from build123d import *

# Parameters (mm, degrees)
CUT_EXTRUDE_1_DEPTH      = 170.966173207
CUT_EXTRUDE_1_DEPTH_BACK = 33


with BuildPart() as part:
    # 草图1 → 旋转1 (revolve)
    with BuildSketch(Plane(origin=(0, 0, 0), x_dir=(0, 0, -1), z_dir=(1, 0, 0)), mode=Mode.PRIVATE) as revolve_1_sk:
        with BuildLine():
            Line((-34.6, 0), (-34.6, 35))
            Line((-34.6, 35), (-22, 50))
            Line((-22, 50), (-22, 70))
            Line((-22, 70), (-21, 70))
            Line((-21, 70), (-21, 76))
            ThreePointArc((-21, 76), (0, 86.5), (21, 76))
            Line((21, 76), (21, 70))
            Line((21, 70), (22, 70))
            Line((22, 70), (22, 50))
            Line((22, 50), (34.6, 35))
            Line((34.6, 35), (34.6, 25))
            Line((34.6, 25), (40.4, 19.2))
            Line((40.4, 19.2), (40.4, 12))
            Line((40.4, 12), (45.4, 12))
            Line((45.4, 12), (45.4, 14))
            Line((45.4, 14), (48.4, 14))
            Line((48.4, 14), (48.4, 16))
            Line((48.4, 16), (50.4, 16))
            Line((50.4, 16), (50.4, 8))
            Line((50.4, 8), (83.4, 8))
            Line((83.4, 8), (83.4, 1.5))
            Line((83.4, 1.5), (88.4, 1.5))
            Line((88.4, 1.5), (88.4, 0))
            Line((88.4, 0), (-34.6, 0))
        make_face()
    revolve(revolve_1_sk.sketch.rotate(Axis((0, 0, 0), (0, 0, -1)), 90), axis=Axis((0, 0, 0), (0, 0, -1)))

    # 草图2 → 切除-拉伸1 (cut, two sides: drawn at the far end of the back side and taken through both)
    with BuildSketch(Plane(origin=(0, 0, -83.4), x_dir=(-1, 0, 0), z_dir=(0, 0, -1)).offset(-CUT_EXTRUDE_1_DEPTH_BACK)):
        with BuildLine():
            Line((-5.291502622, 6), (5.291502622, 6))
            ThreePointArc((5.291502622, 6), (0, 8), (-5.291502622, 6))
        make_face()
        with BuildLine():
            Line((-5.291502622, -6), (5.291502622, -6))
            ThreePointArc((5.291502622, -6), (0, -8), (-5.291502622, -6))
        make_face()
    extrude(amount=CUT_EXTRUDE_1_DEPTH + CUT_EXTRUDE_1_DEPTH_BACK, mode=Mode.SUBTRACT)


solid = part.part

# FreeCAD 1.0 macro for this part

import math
import FreeCAD as App
import Part
import Sketcher
from FreeCAD import Vector
Q = App.Units.Quantity

doc = App.newDocument("Part")
body = doc.addObject("PartDesign::Body", "Body")

# Sketch on YZ plane
sketch1 = body.newObject("Sketcher::SketchObject", "Sketch")
sketch1.AttachmentSupport = (doc.getObject("YZ_Plane"), [""])
sketch1.MapMode = "FlatFace"
sketch1.addGeometry([
    Part.LineSegment(Vector(35, 34.6, 0), Vector(0, 34.6, 0)),  # 0
    Part.LineSegment(Vector(0, 34.6, 0), Vector(0, -88.4, 0)),  # 1
    Part.LineSegment(Vector(0, -88.4, 0), Vector(1.5, -88.4, 0)),  # 2
    Part.LineSegment(Vector(1.5, -88.4, 0), Vector(1.5, -83.4, 0)),  # 3
    Part.LineSegment(Vector(1.5, -83.4, 0), Vector(8, -83.4, 0)),  # 4
    Part.LineSegment(Vector(8, -83.4, 0), Vector(8, -50.4, 0)),  # 5
    Part.LineSegment(Vector(8, -50.4, 0), Vector(16, -50.4, 0)),  # 6
    Part.LineSegment(Vector(16, -50.4, 0), Vector(16, -48.4, 0)),  # 7
    Part.LineSegment(Vector(16, -48.4, 0), Vector(14, -48.4, 0)),  # 8
    Part.LineSegment(Vector(14, -48.4, 0), Vector(14, -45.4, 0)),  # 9
    Part.LineSegment(Vector(14, -45.4, 0), Vector(12, -45.4, 0)),  # 10
    Part.LineSegment(Vector(12, -45.4, 0), Vector(12, -40.4, 0)),  # 11
    Part.LineSegment(Vector(12, -40.4, 0), Vector(19.2, -40.4, 0)),  # 12
    Part.LineSegment(Vector(19.2, -40.4, 0), Vector(25, -34.6, 0)),  # 13
    Part.LineSegment(Vector(25, -34.6, 0), Vector(35, -34.6, 0)),  # 14
    Part.LineSegment(Vector(35, -34.6, 0), Vector(50, -22, 0)),  # 15
    Part.LineSegment(Vector(50, -22, 0), Vector(70, -22, 0)),  # 16
    Part.LineSegment(Vector(70, -22, 0), Vector(70, -21, 0)),  # 17
    Part.LineSegment(Vector(70, -21, 0), Vector(76, -21, 0)),  # 18
    Part.ArcOfCircle(Part.Circle(Vector(60.2, 0, 0), Vector(0, 0, 1), 26.2), math.radians(-53), math.radians(53)),  # 19
    Part.LineSegment(Vector(76, 21, 0), Vector(70, 21, 0)),  # 20
    Part.LineSegment(Vector(70, 21, 0), Vector(70, 22, 0)),  # 21
    Part.LineSegment(Vector(70, 22, 0), Vector(50, 22, 0)),  # 22
    Part.LineSegment(Vector(50, 22, 0), Vector(35, 34.6, 0)),  # 23
], False)
sketch1.addConstraint([
    Sketcher.Constraint("Coincident", 0, 2, 1, 1),
    Sketcher.Constraint("Coincident", 1, 2, 2, 1),
    Sketcher.Constraint("Coincident", 2, 2, 3, 1),
    Sketcher.Constraint("Coincident", 3, 2, 4, 1),
    Sketcher.Constraint("Coincident", 4, 2, 5, 1),
    Sketcher.Constraint("Coincident", 5, 2, 6, 1),
    Sketcher.Constraint("Coincident", 6, 2, 7, 1),
    Sketcher.Constraint("Coincident", 7, 2, 8, 1),
    Sketcher.Constraint("Coincident", 8, 2, 9, 1),
    Sketcher.Constraint("Coincident", 9, 2, 10, 1),
    Sketcher.Constraint("Coincident", 10, 2, 11, 1),
    Sketcher.Constraint("Coincident", 11, 2, 12, 1),
    Sketcher.Constraint("Coincident", 12, 2, 13, 1),
    Sketcher.Constraint("Coincident", 13, 2, 14, 1),
    Sketcher.Constraint("Coincident", 14, 2, 15, 1),
    Sketcher.Constraint("Coincident", 15, 2, 16, 1),
    Sketcher.Constraint("Coincident", 16, 2, 17, 1),
    Sketcher.Constraint("Coincident", 17, 2, 18, 1),
    Sketcher.Constraint("Coincident", 18, 2, 19, 1),
    Sketcher.Constraint("Coincident", 19, 2, 20, 1),
    Sketcher.Constraint("Coincident", 20, 2, 21, 1),
    Sketcher.Constraint("Coincident", 21, 2, 22, 1),
    Sketcher.Constraint("Coincident", 22, 2, 23, 1),
    Sketcher.Constraint("Coincident", 23, 2, 0, 1),
    Sketcher.Constraint("Horizontal", 0),
    Sketcher.Constraint("Vertical", 1),
    Sketcher.Constraint("Horizontal", 2),
    Sketcher.Constraint("Vertical", 3),
    Sketcher.Constraint("Horizontal", 4),
    Sketcher.Constraint("Vertical", 5),
    Sketcher.Constraint("Horizontal", 6),
    Sketcher.Constraint("Vertical", 7),
    Sketcher.Constraint("Horizontal", 8),
    Sketcher.Constraint("Vertical", 9),
    Sketcher.Constraint("Horizontal", 10),
    Sketcher.Constraint("Vertical", 11),
    Sketcher.Constraint("Horizontal", 12),
    Sketcher.Constraint("Horizontal", 14),
    Sketcher.Constraint("Horizontal", 16),
    Sketcher.Constraint("Vertical", 17),
    Sketcher.Constraint("Horizontal", 18),
    Sketcher.Constraint("Horizontal", 20),
    Sketcher.Constraint("Vertical", 21),
    Sketcher.Constraint("Horizontal", 22),
    Sketcher.Constraint("Symmetric", 18, 2, 19, 2, -1),
    Sketcher.Constraint("Symmetric", 16, 2, 21, 2, -1),
    Sketcher.Constraint("Symmetric", 14, 2, 23, 2, -1),
    Sketcher.Constraint("PointOnObject", 0, 2, -2),
    Sketcher.Constraint("Vertical", 15, 2, 22, 2),
    Sketcher.Constraint("Equal", 8, 10),
    Sketcher.Constraint("Equal", 10, 7),
    Sketcher.Constraint("Equal", 3, 11),
    Sketcher.Constraint("DistanceX", 0, 2, 0, 1, 35.0),
    Sketcher.Constraint("DistanceX", 6, 1, 6, 2, 8.0),
    Sketcher.Constraint("DistanceX", 8, 2, 8, 1, 2.0),
    Sketcher.Constraint("DistanceX", 14, 1, 14, 2, 10.0),
    Sketcher.Constraint("DistanceX", 16, 1, 16, 2, 20.0),
    Sketcher.Constraint("DistanceX", 18, 1, 18, 2, 6.0),
    Sketcher.Constraint("DistanceY", 1, 2, 1, 1, 123.0),
    Sketcher.Constraint("DistanceY", 3, 1, 3, 2, 5.0),
    Sketcher.Constraint("DistanceY", 5, 1, 5, 2, 33.0),
    Sketcher.Constraint("DistanceY", 9, 1, 9, 2, 3.0),
    Sketcher.Constraint("DistanceY", 17, 1, 17, 2, 1.0),
    Sketcher.Constraint("Angle", 13, Q("45 deg")),
    Sketcher.Constraint("Radius", 19, 26.25),
    Sketcher.Constraint("DistanceX", 2, 1, 2, 2, 1.5),
    Sketcher.Constraint("DistanceX", 4, 1, 4, 2, 6.5),
    Sketcher.Constraint("DistanceX", 12, 1, 12, 2, 7.2),
    Sketcher.Constraint("DistanceX", -1, 1, 15, 2, 50.0),
    Sketcher.Constraint("DistanceY", 15, 2, -1, 1, 22.0),
])
revolution = body.newObject("PartDesign::Revolution", "Revolution")
revolution.Profile = sketch1
revolution.ReferenceAxis = (sketch1, ["V_Axis"])
revolution.Angle = 360

# Sketch on XY plane
sketch2 = body.newObject("Sketcher::SketchObject", "Sketch001")
sketch2.AttachmentSupport = (doc.getObject("XY_Plane"), [""])
sketch2.MapMode = "FlatFace"
sketch2.AttachmentOffset = App.Placement(Vector(0, 0, -83.4), App.Rotation())
sketch2.addGeometry([
    Part.LineSegment(Vector(5, 6, 0), Vector(-5, 6, 0)),
    Part.ArcOfCircle(Part.Circle(Vector(0, 0, 0), Vector(0, 0, 1), 8), math.radians(49), math.radians(131)),
    Part.LineSegment(Vector(-5, -6, 0), Vector(5, -6, 0)),
    Part.ArcOfCircle(Part.Circle(Vector(0, 0, 0), Vector(0, 0, 1), 8), math.radians(-131), math.radians(-49)),
], False)
sketch2.addConstraint([
    Sketcher.Constraint("Coincident", 0, 1, 1, 1),
    Sketcher.Constraint("Coincident", 1, 2, 0, 2),
    Sketcher.Constraint("Coincident", 2, 1, 3, 1),
    Sketcher.Constraint("Coincident", 3, 2, 2, 2),
    Sketcher.Constraint("Horizontal", 0),
    Sketcher.Constraint("Horizontal", 2),
    Sketcher.Constraint("Coincident", 1, 3, -1, 1),
    Sketcher.Constraint("Coincident", 3, 3, -1, 1),
    Sketcher.Constraint("Equal", 1, 3),
    Sketcher.Constraint("Vertical", 1, 2, 2, 1),
    Sketcher.Constraint("Radius", 1, 8.0),
    Sketcher.Constraint("DistanceY", -1, 1, 0, 1, 6.0),
])
pocket1 = body.newObject("PartDesign::Pocket", "Pocket")
pocket1.Profile = sketch2
pocket1.Type = "TwoLengths"
pocket1.Length = 170.966173
pocket1.Length2 = 33

doc.recompute()
